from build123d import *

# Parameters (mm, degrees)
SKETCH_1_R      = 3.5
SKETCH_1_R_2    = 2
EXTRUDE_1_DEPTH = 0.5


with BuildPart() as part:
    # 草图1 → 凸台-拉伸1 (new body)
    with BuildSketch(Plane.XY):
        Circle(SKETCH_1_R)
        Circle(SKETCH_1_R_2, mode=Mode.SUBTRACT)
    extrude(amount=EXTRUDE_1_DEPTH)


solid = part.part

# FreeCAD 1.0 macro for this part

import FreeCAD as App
import Part
import Sketcher
from FreeCAD import Vector

doc = App.newDocument("Part")
params = doc.addObject("Spreadsheet::Sheet", "Params")
for row, (alias, value) in enumerate([
    ("sketch1_diameter", "7 mm"),
    ("sketch1_diameter2", "4 mm"),
    ("pad1_length", "0.5 mm"),
], start=1):
    params.set(f"A{row}", alias)
    params.set(f"B{row}", "=" + value)
    params.setAlias(f"B{row}", alias)

body = doc.addObject("PartDesign::Body", "Body")

# Sketch on XY plane
sketch1 = body.newObject("Sketcher::SketchObject", "Sketch")
sketch1.AttachmentSupport = (doc.getObject("XY_Plane"), [""])
sketch1.MapMode = "FlatFace"
sketch1.addGeometry([
    Part.Circle(Vector(0, 0, 0), Vector(0, 0, 1), 3.5),
    Part.Circle(Vector(0, 0, 0), Vector(0, 0, 1), 2),
], False)
sketch1.addConstraint([
    Sketcher.Constraint("Coincident", 0, 3, -1, 1),
    Sketcher.Constraint("Coincident", 1, 3, -1, 1),
    Sketcher.Constraint("Diameter", 0, 7.0),
    Sketcher.Constraint("Diameter", 1, 4.0),
])
sketch1.setExpression("Constraints[2]", "Params.sketch1_diameter")
sketch1.setExpression("Constraints[3]", "Params.sketch1_diameter2")
pad1 = body.newObject("PartDesign::Pad", "Pad")
pad1.Profile = sketch1
pad1.setExpression("Length", "Params.pad1_length")

doc.recompute()
